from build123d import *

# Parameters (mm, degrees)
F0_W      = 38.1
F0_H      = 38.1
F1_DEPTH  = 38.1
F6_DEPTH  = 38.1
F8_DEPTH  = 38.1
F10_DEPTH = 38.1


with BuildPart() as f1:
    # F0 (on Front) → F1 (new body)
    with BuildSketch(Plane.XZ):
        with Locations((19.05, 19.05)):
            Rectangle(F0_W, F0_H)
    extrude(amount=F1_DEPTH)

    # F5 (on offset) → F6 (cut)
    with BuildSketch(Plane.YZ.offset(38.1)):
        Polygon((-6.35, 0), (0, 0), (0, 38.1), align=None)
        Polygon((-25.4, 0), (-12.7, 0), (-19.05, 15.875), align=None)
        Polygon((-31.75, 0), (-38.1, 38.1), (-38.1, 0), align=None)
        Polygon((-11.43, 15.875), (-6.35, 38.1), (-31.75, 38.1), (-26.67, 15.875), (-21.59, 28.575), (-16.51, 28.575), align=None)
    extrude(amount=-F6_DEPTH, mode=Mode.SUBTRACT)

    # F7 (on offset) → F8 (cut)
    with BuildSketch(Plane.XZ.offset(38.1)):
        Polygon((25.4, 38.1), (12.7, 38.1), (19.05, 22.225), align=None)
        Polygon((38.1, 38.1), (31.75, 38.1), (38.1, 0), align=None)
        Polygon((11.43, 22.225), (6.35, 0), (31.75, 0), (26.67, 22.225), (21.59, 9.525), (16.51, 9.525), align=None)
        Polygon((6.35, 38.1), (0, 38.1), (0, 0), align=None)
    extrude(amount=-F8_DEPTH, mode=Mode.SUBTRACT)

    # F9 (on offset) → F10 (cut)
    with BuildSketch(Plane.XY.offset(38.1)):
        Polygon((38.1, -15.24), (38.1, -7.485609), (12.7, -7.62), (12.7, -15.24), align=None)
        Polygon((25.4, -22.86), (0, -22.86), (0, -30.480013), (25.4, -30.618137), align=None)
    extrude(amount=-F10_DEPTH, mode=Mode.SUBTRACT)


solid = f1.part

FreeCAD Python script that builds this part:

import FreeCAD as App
import Part
import Sketcher

V = App.Vector
Q = App.Units.Quantity

doc = App.newDocument("Part")
body = doc.addObject("PartDesign::Body", "Body")

sketch1 = doc.addObject("Sketcher::SketchObject", "Sketch")
body.addObject(sketch1)
sketch1.AttachmentSupport = (doc.XZ_Plane, [""])
sketch1.MapMode = "FlatFace"
sketch1.addGeometry(Part.LineSegment(V(0, 38, 0), V(0, 0, 0)), False)
sketch1.addGeometry(Part.LineSegment(V(0, 0, 0), V(38, 0, 0)), False)
sketch1.addGeometry(Part.LineSegment(V(38, 0, 0), V(38, 38, 0)), False)
sketch1.addGeometry(Part.LineSegment(V(38, 38, 0), V(0, 38, 0)), False)
sketch1.addConstraint(Sketcher.Constraint("Coincident", 0, 2, 1, 1))
sketch1.addConstraint(Sketcher.Constraint("Coincident", 1, 2, 2, 1))
sketch1.addConstraint(Sketcher.Constraint("Coincident", 2, 2, 3, 1))
sketch1.addConstraint(Sketcher.Constraint("Coincident", 3, 2, 0, 1))
sketch1.addConstraint(Sketcher.Constraint("Vertical", 0))
sketch1.addConstraint(Sketcher.Constraint("Horizontal", 1))
sketch1.addConstraint(Sketcher.Constraint("Vertical", 2))
sketch1.addConstraint(Sketcher.Constraint("Horizontal", 3))
sketch1.addConstraint(Sketcher.Constraint("Coincident", 0, 2, -1, 1))
sketch1.addConstraint(Sketcher.Constraint("Equal", 3, 0))
sketch1.addConstraint(Sketcher.Constraint("DistanceX", 1, 1, 1, 2, Q("1.5 in")))
pad1 = doc.addObject("PartDesign::Pad", "Pad")
body.addObject(pad1)
pad1.Profile = sketch1
pad1.Length = Q("1.5 in")

sketch2 = doc.addObject("Sketcher::SketchObject", "Sketch001")
body.addObject(sketch2)
sketch2.AttachmentSupport = (doc.YZ_Plane, [""])
sketch2.MapMode = "FlatFace"
sketch2.AttachmentOffset = App.Placement(V(0, 0, 1.5 * 25.4), App.Rotation())
sketch2.addGeometry(Part.LineSegment(V(-6, 0, 0), V(0, 0, 0)), False)
sketch2.addGeometry(Part.LineSegment(V(0, 0, 0), V(0, 38, 0)), False)
sketch2.addGeometry(Part.LineSegment(V(0, 38, 0), V(-6, 0, 0)), False)
sketch2.addGeometry(Part.LineSegment(V(-25, 0, 0), V(-13, 0, 0)), False)
sketch2.addGeometry(Part.LineSegment(V(-13, 0, 0), V(-19, 16, 0)), False)
sketch2.addGeometry(Part.LineSegment(V(-19, 16, 0), V(-25, 0, 0)), False)
sketch2.addGeometry(Part.LineSegment(V(-32, 0, 0), V(-38, 38, 0)), False)
sketch2.addGeometry(Part.LineSegment(V(-38, 38, 0), V(-38, 0, 0)), False)
sketch2.addGeometry(Part.LineSegment(V(-38, 0, 0), V(-32, 0, 0)), False)
sketch2.addGeometry(Part.LineSegment(V(-11, 16, 0), V(-6, 38, 0)), False)
sketch2.addGeometry(Part.LineSegment(V(-6, 38, 0), V(-32, 38, 0)), False)
sketch2.addGeometry(Part.LineSegment(V(-32, 38, 0), V(-27, 16, 0)), False)
sketch2.addGeometry(Part.LineSegment(V(-27, 16, 0), V(-22, 29, 0)), False)
sketch2.addGeometry(Part.LineSegment(V(-22, 29, 0), V(-17, 29, 0)), False)
sketch2.addGeometry(Part.LineSegment(V(-17, 29, 0), V(-11, 16, 0)), False)
sketch2.addConstraint(Sketcher.Constraint("Coincident", 0, 2, 1, 1))
sketch2.addConstraint(Sketcher.Constraint("Coincident", 1, 2, 2, 1))
sketch2.addConstraint(Sketcher.Constraint("Coincident", 2, 2, 0, 1))
sketch2.addConstraint(Sketcher.Constraint("Coincident", 3, 2, 4, 1))
sketch2.addConstraint(Sketcher.Constraint("Coincident", 4, 2, 5, 1))
sketch2.addConstraint(Sketcher.Constraint("Coincident", 5, 2, 3, 1))
sketch2.addConstraint(Sketcher.Constraint("Coincident", 6, 2, 7, 1))
sketch2.addConstraint(Sketcher.Constraint("Coincident", 7, 2, 8, 1))
sketch2.addConstraint(Sketcher.Constraint("Coincident", 8, 2, 6, 1))
sketch2.addConstraint(Sketcher.Constraint("Coincident", 9, 2, 10, 1))
sketch2.addConstraint(Sketcher.Constraint("Coincident", 10, 2, 11, 1))
sketch2.addConstraint(Sketcher.Constraint("Coincident", 11, 2, 12, 1))
sketch2.addConstraint(Sketcher.Constraint("Coincident", 12, 2, 13, 1))
sketch2.addConstraint(Sketcher.Constraint("Coincident", 13, 2, 14, 1))
sketch2.addConstraint(Sketcher.Constraint("Coincident", 14, 2, 9, 1))
sketch2.addConstraint(Sketcher.Constraint("Horizontal", 0))
sketch2.addConstraint(Sketcher.Constraint("Vertical", 1))
sketch2.addConstraint(Sketcher.Constraint("Horizontal", 3))
sketch2.addConstraint(Sketcher.Constraint("Vertical", 7))
sketch2.addConstraint(Sketcher.Constraint("Horizontal", 8))
sketch2.addConstraint(Sketcher.Constraint("Horizontal", 10))
sketch2.addConstraint(Sketcher.Constraint("Horizontal", 13))
sketch2.addConstraint(Sketcher.Constraint("Coincident", 0, 2, -1, 1))
sketch2.addConstraint(Sketcher.Constraint("PointOnObject", 3, 2, -1))
sketch2.addConstraint(Sketcher.Constraint("PointOnObject", 7, 2, -1))
sketch2.addConstraint(Sketcher.Constraint("Parallel", 5, 12))
sketch2.addConstraint(Sketcher.Constraint("Parallel", 4, 14))
sketch2.addConstraint(Sketcher.Constraint("Horizontal", 1, 2, 6, 2))
sketch2.addConstraint(Sketcher.Constraint("Horizontal", 6, 2, 9, 2))
sketch2.addConstraint(Sketcher.Constraint("Horizontal", 4, 2, 11, 2))
sketch2.addConstraint(Sketcher.Constraint("Horizontal", 11, 2, 14, 2))
sketch2.addConstraint(Sketcher.Constraint("Vertical", 2, 2, 9, 2))
sketch2.addConstraint(Sketcher.Constraint("Vertical", 8, 2, 10, 2))
sketch2.addConstraint(Sketcher.Constraint("Equal", 0, 8))
sketch2.addConstraint(Sketcher.Constraint("Equal", 4, 5))
sketch2.addConstraint(Sketcher.Constraint("Equal", 9, 11))
sketch2.addConstraint(Sketcher.Constraint("DistanceX", 10, 2, 10, 1, Q("1 in")))
sketch2.addConstraint(Sketcher.Constraint("DistanceX", 3, 1, 3, 2, Q("0.5 in")))
sketch2.addConstraint(Sketcher.Constraint("DistanceX", 13, 1, 13, 2, Q("0.2 in")))
sketch2.addConstraint(Sketcher.Constraint("DistanceY", 1, 1, 1, 2, Q("1.5 in")))
sketch2.addConstraint(Sketcher.Constraint("DistanceX", 5, 2, -1, 1, Q("1 in")))
sketch2.addConstraint(Sketcher.Constraint("DistanceX", 6, 2, 3, 2, Q("1 in")))
sketch2.addConstraint(Sketcher.Constraint("DistanceX", 11, 2, 4, 2, Q("0.3 in")))
sketch2.addConstraint(Sketcher.Constraint("DistanceY", 4, 2, 12, 2, Q("0.5 in")))
pocket1 = doc.addObject("PartDesign::Pocket", "Pocket")
body.addObject(pocket1)
pocket1.Profile = sketch2
pocket1.Length = Q("1.5 in")

sketch3 = doc.addObject("Sketcher::SketchObject", "Sketch002")
body.addObject(sketch3)
sketch3.AttachmentSupport = (doc.XZ_Plane, [""])
sketch3.MapMode = "FlatFace"
sketch3.AttachmentOffset = App.Placement(V(0, 0, 1.5 * 25.4), App.Rotation())
sketch3.addGeometry(Part.LineSegment(V(25, 38, 0), V(13, 38, 0)), False)
sketch3.addGeometry(Part.LineSegment(V(13, 38, 0), V(19, 22, 0)), False)
sketch3.addGeometry(Part.LineSegment(V(19, 22, 0), V(25, 38, 0)), False)
sketch3.addGeometry(Part.LineSegment(V(38, 38, 0), V(32, 38, 0)), False)
sketch3.addGeometry(Part.LineSegment(V(32, 38, 0), V(38, 0, 0)), False)
sketch3.addGeometry(Part.LineSegment(V(38, 0, 0), V(38, 38, 0)), False)
sketch3.addGeometry(Part.LineSegment(V(11, 22, 0), V(6, 0, 0)), False)
sketch3.addGeometry(Part.LineSegment(V(6, 0, 0), V(32, 0, 0)), False)
sketch3.addGeometry(Part.LineSegment(V(32, 0, 0), V(27, 22, 0)), False)
sketch3.addGeometry(Part.LineSegment(V(27, 22, 0), V(22, 10, 0)), False)
sketch3.addGeometry(Part.LineSegment(V(22, 10, 0), V(17, 10, 0)), False)
sketch3.addGeometry(Part.LineSegment(V(17, 10, 0), V(11, 22, 0)), False)
sketch3.addGeometry(Part.LineSegment(V(6, 38, 0), V(0, 38, 0)), False)
sketch3.addGeometry(Part.LineSegment(V(0, 38, 0), V(0, 0, 0)), False)
sketch3.addGeometry(Part.LineSegment(V(0, 0, 0), V(6, 38, 0)), False)
sketch3.addConstraint(Sketcher.Constraint("Coincident", 0, 2, 1, 1))
sketch3.addConstraint(Sketcher.Constraint("Coincident", 1, 2, 2, 1))
sketch3.addConstraint(Sketcher.Constraint("Coincident", 2, 2, 0, 1))
sketch3.addConstraint(Sketcher.Constraint("Coincident", 3, 2, 4, 1))
sketch3.addConstraint(Sketcher.Constraint("Coincident", 4, 2, 5, 1))
sketch3.addConstraint(Sketcher.Constraint("Coincident", 5, 2, 3, 1))
sketch3.addConstraint(Sketcher.Constraint("Coincident", 6, 2, 7, 1))
sketch3.addConstraint(Sketcher.Constraint("Coincident", 7, 2, 8, 1))
sketch3.addConstraint(Sketcher.Constraint("Coincident", 8, 2, 9, 1))
sketch3.addConstraint(Sketcher.Constraint("Coincident", 9, 2, 10, 1))
sketch3.addConstraint(Sketcher.Constraint("Coincident", 10, 2, 11, 1))
sketch3.addConstraint(Sketcher.Constraint("Coincident", 11, 2, 6, 1))
sketch3.addConstraint(Sketcher.Constraint("Coincident", 12, 2, 13, 1))
sketch3.addConstraint(Sketcher.Constraint("Coincident", 13, 2, 14, 1))
sketch3.addConstraint(Sketcher.Constraint("Coincident", 14, 2, 12, 1))
sketch3.addConstraint(Sketcher.Constraint("Horizontal", 0))
sketch3.addConstraint(Sketcher.Constraint("Horizontal", 3))
sketch3.addConstraint(Sketcher.Constraint("Vertical", 5))
sketch3.addConstraint(Sketcher.Constraint("Horizontal", 7))
sketch3.addConstraint(Sketcher.Constraint("Horizontal", 10))
sketch3.addConstraint(Sketcher.Constraint("Horizontal", 12))
sketch3.addConstraint(Sketcher.Constraint("Vertical", 13))
sketch3.addConstraint(Sketcher.Constraint("Coincident", 13, 2, -1, 1))
sketch3.addConstraint(Sketcher.Constraint("PointOnObject", 4, 2, -1))
sketch3.addConstraint(Sketcher.Constraint("PointOnObject", 6, 2, -1))
sketch3.addConstraint(Sketcher.Constraint("Parallel", 2, 9))
sketch3.addConstraint(Sketcher.Constraint("Parallel", 1, 11))
sketch3.addConstraint(Sketcher.Constraint("Horizontal", 2, 2, 3, 2))
sketch3.addConstraint(Sketcher.Constraint("Horizontal", 1, 2, 8, 2))
sketch3.addConstraint(Sketcher.Constraint("Horizontal", 8, 2, 11, 2))
sketch3.addConstraint(Sketcher.Constraint("Horizontal", 5, 2, 12, 2))
sketch3.addConstraint(Sketcher.Constraint("Vertical", 3, 2, 7, 2))
sketch3.addConstraint(Sketcher.Constraint("Vertical", 6, 2, 14, 2))
sketch3.addConstraint(Sketcher.Constraint("Equal", 3, 12))
sketch3.addConstraint(Sketcher.Constraint("Equal", 1, 2))
sketch3.addConstraint(Sketcher.Constraint("Equal", 6, 8))
sketch3.addConstraint(Sketcher.Constraint("DistanceX", 7, 1, 7, 2, Q("1 in")))
sketch3.addConstraint(Sketcher.Constraint("DistanceX", 0, 2, 0, 1, Q("0.5 in")))
sketch3.addConstraint(Sketcher.Constraint("DistanceX", 10, 2, 10, 1, Q("0.2 in")))
sketch3.addConstraint(Sketcher.Constraint("DistanceY", 5, 1, 5, 2, Q("1.5 in")))
sketch3.addConstraint(Sketcher.Constraint("DistanceX", -1, 1, 2, 2, Q("1 in")))
sketch3.addConstraint(Sketcher.Constraint("DistanceX", 0, 2, 4, 2, Q("1 in")))
sketch3.addConstraint(Sketcher.Constraint("DistanceX", 1, 2, 8, 2, Q("0.3 in")))
sketch3.addConstraint(Sketcher.Constraint("DistanceY", 9, 2, 1, 2, Q("0.5 in")))
pocket2 = doc.addObject("PartDesign::Pocket", "Pocket001")
body.addObject(pocket2)
pocket2.Profile = sketch3
pocket2.Length = Q("1.5 in")

sketch4 = doc.addObject("Sketcher::SketchObject", "Sketch003")
body.addObject(sketch4)
sketch4.AttachmentSupport = (doc.XY_Plane, [""])
sketch4.MapMode = "FlatFace"
sketch4.AttachmentOffset = App.Placement(V(0, 0, 1.5 * 25.4), App.Rotation())
sketch4.addGeometry(Part.LineSegment(V(38, -15, 0), V(38, -7, 0)), False)
sketch4.addGeometry(Part.LineSegment(V(38, -7, 0), V(13, -8, 0)), False)
sketch4.addGeometry(Part.LineSegment(V(13, -8, 0), V(13, -15, 0)), False)
sketch4.addGeometry(Part.LineSegment(V(13, -15, 0), V(38, -15, 0)), False)
sketch4.addGeometry(Part.LineSegment(V(25, -23, 0), V(0, -23, 0)), False)
sketch4.addGeometry(Part.LineSegment(V(0, -23, 0), V(0, -30, 0)), False)
sketch4.addGeometry(Part.LineSegment(V(0, -30, 0), V(25, -31, 0)), False)
sketch4.addGeometry(Part.LineSegment(V(25, -31, 0), V(25, -23, 0)), False)
sketch4.addConstraint(Sketcher.Constraint("Coincident", 0, 2, 1, 1))
sketch4.addConstraint(Sketcher.Constraint("Coincident", 1, 2, 2, 1))
sketch4.addConstraint(Sketcher.Constraint("Coincident", 2, 2, 3, 1))
sketch4.addConstraint(Sketcher.Constraint("Coincident", 3, 2, 0, 1))
sketch4.addConstraint(Sketcher.Constraint("Coincident", 4, 2, 5, 1))
sketch4.addConstraint(Sketcher.Constraint("Coincident", 5, 2, 6, 1))
sketch4.addConstraint(Sketcher.Constraint("Coincident", 6, 2, 7, 1))
sketch4.addConstraint(Sketcher.Constraint("Coincident", 7, 2, 4, 1))
sketch4.addConstraint(Sketcher.Constraint("Vertical", 0))
sketch4.addConstraint(Sketcher.Constraint("Vertical", 2))
sketch4.addConstraint(Sketcher.Constraint("Horizontal", 3))
sketch4.addConstraint(Sketcher.Constraint("Horizontal", 4))
sketch4.addConstraint(Sketcher.Constraint("Vertical", 5))
sketch4.addConstraint(Sketcher.Constraint("Vertical", 7))
sketch4.addConstraint(Sketcher.Constraint("PointOnObject", 4, 2, -2))
sketch4.addConstraint(Sketcher.Constraint("Equal", 3, 4))
sketch4.addConstraint(Sketcher.Constraint("DistanceX", 3, 1, 3, 2, Q("1 in")))
sketch4.addConstraint(Sketcher.Constraint("DistanceY", 2, 2, 2, 1, Q("0.3 in")))
sketch4.addConstraint(Sketcher.Constraint("DistanceX", -1, 1, 0, 2, Q("1.5 in")))
sketch4.addConstraint(Sketcher.Constraint("DistanceY", 1, 2, -1, 1, Q("0.3 in")))
sketch4.addConstraint(Sketcher.Constraint("DistanceY", 4, 2, -1, 1, Q("0.9 in")))
sketch4.addConstraint(Sketcher.Constraint("DistanceY", 0, 1, 0, 2, 7.754391))
sketch4.addConstraint(Sketcher.Constraint("DistanceY", 5, 2, 5, 1, 7.620013))
sketch4.addConstraint(Sketcher.Constraint("DistanceY", 7, 1, 7, 2, 7.758137))
pocket3 = doc.addObject("PartDesign::Pocket", "Pocket002")
body.addObject(pocket3)
pocket3.Profile = sketch4
pocket3.Length = Q("1.5 in")

doc.recompute()
